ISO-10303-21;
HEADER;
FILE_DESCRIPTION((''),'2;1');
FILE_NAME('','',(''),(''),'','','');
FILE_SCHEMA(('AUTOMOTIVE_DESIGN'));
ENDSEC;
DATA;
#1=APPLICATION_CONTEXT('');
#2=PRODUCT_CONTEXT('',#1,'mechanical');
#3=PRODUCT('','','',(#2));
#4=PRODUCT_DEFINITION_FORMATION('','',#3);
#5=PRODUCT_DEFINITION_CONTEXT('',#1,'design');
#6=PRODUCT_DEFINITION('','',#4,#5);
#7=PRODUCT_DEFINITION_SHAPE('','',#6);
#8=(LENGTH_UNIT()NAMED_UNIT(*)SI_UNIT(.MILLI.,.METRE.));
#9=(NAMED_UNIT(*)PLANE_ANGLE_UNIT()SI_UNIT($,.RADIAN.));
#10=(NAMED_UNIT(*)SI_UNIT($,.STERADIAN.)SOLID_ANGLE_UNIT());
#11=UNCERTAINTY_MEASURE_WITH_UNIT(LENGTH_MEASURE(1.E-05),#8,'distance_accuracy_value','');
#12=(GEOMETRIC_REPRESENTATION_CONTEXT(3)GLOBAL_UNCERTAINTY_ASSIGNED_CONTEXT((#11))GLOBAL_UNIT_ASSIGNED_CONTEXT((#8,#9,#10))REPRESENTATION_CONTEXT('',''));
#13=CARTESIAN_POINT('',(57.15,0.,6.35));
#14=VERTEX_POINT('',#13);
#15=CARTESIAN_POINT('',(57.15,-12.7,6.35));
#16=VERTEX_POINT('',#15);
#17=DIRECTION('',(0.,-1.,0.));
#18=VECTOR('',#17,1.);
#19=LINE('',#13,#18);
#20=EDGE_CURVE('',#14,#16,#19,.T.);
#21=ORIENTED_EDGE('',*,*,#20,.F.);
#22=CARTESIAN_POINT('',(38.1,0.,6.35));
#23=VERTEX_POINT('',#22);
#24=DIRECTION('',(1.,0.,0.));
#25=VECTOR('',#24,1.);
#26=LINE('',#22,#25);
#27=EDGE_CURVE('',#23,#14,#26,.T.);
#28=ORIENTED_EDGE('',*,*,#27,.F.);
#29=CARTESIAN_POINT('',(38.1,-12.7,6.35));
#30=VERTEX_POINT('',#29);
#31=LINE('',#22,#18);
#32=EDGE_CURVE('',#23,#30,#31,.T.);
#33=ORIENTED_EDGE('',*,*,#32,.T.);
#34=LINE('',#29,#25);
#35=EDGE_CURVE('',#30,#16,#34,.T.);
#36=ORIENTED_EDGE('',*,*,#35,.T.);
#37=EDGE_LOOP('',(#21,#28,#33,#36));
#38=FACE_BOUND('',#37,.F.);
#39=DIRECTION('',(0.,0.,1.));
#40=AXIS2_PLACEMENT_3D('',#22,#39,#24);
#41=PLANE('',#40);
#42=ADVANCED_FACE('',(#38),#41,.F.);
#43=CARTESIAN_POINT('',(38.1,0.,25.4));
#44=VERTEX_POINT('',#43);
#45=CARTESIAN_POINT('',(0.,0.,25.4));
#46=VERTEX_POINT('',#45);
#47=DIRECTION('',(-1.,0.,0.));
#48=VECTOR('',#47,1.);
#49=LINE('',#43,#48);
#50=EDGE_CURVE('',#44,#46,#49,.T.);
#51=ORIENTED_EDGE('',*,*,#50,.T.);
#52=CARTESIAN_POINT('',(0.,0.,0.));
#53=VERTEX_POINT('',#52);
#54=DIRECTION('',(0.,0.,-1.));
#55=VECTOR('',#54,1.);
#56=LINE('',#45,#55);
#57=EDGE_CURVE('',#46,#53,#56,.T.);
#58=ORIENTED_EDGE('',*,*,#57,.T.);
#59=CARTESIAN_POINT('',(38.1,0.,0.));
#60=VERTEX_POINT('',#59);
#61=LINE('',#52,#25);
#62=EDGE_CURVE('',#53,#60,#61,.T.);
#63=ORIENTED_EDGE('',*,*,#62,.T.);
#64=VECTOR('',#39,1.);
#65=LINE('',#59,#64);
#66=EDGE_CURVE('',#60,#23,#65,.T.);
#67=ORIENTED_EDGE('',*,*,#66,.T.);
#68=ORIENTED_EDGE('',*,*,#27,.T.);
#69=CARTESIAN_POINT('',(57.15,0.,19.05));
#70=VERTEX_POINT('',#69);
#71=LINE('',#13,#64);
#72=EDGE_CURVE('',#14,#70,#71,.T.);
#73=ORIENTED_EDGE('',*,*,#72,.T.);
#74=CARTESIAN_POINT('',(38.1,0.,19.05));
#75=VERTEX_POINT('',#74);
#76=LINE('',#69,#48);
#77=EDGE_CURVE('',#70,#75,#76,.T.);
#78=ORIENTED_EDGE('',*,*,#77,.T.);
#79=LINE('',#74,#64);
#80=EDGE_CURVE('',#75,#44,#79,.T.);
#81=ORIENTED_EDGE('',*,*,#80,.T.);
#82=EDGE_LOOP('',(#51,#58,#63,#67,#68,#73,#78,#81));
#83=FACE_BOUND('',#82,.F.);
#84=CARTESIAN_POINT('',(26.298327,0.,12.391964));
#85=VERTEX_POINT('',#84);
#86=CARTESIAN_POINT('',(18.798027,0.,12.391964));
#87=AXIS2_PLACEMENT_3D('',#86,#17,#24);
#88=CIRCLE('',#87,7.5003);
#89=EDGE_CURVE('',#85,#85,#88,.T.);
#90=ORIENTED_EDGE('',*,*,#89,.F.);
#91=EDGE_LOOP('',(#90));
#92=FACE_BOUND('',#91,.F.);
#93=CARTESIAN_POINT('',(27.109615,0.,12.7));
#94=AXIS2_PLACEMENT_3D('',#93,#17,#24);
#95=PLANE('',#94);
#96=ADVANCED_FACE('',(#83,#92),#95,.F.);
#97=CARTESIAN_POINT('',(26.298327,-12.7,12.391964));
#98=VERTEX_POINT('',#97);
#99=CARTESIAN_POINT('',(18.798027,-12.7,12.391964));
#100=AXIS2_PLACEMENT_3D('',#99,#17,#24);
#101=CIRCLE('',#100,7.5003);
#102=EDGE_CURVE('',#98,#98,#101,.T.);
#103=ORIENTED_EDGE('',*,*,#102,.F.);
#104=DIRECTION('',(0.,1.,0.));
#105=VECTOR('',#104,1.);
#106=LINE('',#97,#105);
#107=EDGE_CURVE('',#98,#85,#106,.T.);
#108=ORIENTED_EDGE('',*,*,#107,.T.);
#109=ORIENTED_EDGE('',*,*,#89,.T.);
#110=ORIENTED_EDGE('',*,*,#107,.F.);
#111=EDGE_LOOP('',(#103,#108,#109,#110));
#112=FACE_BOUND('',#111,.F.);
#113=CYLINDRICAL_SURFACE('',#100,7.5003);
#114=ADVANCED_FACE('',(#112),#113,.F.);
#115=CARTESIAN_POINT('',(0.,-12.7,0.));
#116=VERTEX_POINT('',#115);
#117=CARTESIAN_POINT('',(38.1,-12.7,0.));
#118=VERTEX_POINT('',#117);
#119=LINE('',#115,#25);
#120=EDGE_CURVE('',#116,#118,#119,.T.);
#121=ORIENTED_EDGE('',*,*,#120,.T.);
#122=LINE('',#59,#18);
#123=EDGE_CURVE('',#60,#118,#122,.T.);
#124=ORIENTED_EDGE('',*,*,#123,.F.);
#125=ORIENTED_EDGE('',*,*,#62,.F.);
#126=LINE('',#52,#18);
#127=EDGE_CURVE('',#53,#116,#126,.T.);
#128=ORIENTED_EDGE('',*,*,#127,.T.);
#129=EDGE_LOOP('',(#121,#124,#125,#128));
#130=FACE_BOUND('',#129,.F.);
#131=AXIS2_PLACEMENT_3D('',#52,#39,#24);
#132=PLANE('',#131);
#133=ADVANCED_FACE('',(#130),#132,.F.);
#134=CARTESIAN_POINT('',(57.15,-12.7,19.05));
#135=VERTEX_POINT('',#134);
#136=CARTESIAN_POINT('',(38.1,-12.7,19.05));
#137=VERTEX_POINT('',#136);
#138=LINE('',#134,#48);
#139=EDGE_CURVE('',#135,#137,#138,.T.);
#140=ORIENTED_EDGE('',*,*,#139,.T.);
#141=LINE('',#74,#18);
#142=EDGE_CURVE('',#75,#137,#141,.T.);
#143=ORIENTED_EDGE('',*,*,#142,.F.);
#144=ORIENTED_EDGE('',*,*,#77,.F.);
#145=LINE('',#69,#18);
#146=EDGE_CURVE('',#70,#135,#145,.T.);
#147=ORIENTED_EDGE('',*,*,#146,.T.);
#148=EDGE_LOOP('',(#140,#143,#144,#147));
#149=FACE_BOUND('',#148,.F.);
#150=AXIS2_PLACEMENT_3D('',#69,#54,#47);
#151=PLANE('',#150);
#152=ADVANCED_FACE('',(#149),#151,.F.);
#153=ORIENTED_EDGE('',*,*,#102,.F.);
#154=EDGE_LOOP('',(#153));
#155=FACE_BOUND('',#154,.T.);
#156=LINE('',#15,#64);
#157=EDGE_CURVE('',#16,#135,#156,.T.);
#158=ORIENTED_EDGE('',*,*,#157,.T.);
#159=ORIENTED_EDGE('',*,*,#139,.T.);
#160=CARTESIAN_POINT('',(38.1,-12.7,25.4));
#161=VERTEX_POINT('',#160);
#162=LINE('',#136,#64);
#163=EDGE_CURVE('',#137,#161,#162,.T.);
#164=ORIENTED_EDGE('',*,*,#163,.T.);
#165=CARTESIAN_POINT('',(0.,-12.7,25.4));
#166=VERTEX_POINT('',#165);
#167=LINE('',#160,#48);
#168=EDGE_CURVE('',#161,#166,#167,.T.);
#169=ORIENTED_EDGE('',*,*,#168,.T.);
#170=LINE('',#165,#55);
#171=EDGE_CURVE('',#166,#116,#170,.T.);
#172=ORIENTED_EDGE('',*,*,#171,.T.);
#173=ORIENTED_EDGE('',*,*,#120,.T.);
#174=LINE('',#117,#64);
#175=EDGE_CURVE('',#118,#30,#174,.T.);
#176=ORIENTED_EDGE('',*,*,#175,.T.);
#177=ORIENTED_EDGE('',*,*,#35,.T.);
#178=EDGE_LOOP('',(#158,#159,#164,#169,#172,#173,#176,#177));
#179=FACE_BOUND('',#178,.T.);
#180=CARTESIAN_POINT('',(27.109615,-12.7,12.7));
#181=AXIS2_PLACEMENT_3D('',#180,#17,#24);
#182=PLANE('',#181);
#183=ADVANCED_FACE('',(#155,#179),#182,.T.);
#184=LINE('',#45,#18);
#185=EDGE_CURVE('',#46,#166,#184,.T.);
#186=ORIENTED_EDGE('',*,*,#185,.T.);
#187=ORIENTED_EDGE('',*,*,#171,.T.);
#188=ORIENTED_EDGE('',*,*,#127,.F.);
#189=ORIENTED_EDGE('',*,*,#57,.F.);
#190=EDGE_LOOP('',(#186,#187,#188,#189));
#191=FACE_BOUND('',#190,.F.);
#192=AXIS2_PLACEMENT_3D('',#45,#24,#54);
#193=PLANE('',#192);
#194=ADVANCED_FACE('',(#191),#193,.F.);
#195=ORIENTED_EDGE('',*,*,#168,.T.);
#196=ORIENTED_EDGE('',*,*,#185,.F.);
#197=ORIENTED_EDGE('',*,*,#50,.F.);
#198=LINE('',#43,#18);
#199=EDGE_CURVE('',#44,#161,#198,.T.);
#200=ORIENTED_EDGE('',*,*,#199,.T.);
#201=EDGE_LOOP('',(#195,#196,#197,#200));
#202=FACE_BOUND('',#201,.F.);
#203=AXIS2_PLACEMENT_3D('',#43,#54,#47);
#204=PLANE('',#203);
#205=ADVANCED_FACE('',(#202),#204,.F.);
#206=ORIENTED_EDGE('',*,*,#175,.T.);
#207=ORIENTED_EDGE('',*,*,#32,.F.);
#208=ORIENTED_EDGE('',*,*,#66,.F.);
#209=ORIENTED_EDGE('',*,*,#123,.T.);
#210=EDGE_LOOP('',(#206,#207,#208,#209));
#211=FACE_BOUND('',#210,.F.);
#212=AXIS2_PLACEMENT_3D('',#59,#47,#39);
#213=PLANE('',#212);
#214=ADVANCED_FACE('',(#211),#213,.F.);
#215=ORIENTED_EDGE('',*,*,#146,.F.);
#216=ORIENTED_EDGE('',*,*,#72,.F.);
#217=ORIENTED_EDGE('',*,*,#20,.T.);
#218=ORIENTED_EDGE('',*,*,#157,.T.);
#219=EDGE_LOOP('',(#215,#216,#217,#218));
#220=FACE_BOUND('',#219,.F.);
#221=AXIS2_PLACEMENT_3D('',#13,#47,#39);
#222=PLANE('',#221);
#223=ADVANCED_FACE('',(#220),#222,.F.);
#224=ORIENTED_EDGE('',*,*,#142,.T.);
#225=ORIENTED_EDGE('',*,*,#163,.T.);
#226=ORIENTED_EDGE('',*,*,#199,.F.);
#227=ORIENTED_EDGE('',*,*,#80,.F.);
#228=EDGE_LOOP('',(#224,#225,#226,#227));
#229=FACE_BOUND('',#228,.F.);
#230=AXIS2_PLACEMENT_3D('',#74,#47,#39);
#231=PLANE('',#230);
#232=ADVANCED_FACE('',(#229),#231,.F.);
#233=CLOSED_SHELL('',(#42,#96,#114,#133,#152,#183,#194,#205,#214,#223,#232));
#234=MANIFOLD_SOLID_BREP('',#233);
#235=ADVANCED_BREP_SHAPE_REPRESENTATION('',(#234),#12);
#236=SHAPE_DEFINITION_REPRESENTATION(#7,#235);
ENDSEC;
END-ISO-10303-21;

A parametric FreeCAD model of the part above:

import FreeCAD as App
import Part
import Sketcher
from FreeCAD import Vector
Q = App.Units.Quantity


def add_polygon(sketch, points):
    """Adds a closed chain of lines whose ends are joined by coincident constraints."""
    first, n = sketch.GeometryCount, len(points)
    for a, b in zip(points, points[1:] + points[:1]):
        sketch.addGeometry(Part.LineSegment(App.Vector(*a, 0), App.Vector(*b, 0)), False)
    for i in range(n):
        sketch.addConstraint(Sketcher.Constraint("Coincident", first + i, 2, first + (i + 1) % n, 1))

doc = App.newDocument("Part")
body = doc.addObject("PartDesign::Body", "Body")

sketch1 = doc.addObject("Sketcher::SketchObject", "Sketch")
body.addObject(sketch1)
sketch1.AttachmentSupport = (doc.XZ_Plane, [""])
sketch1.MapMode = "FlatFace"
add_polygon(sketch1, [(0, 25), (0, 0), (38, 0), (38, 6), (57, 6), (57, 19), (38, 19), (38, 25)])
sketch1.addConstraint([
    Sketcher.Constraint("Vertical", 0),
    Sketcher.Constraint("Horizontal", 1),
    Sketcher.Constraint("Vertical", 2),
    Sketcher.Constraint("Horizontal", 3),
    Sketcher.Constraint("Vertical", 4),
    Sketcher.Constraint("Horizontal", 5),
    Sketcher.Constraint("Vertical", 6),
    Sketcher.Constraint("Horizontal", 7),
    Sketcher.Constraint("Coincident", 0, 2, -1, 1),
    Sketcher.Constraint("Vertical", 2, 2, 5, 2),
    Sketcher.Constraint("Equal", 2, 6),
    Sketcher.Constraint("DistanceY", 0, 2, 0, 1, Q("1 in")),
    Sketcher.Constraint("DistanceX", 1, 1, 1, 2, Q("1.5 in")),
    Sketcher.Constraint("DistanceY", 4, 1, 4, 2, Q("0.5 in")),
    Sketcher.Constraint("DistanceX", 3, 1, 3, 2, Q("0.75 in")),
])
pad1 = doc.addObject("PartDesign::Pad", "Pad")
body.addObject(pad1)
pad1.Profile = sketch1
pad1.Length = Q("0.5 in")

sketch2 = doc.addObject("Sketcher::SketchObject", "Sketch001")
body.addObject(sketch2)
sketch2.AttachmentSupport = (doc.XZ_Plane, [""])
sketch2.MapMode = "FlatFace"
sketch2.AttachmentOffset = App.Placement(Vector(0, 0, 0.5 * 25.4), App.Rotation())
sketch2.addGeometry(Part.Circle(Vector(19, 12, 0), Vector(0, 0, 1), 8), False)
sketch2.addConstraint([
    Sketcher.Constraint("Diameter", 0, 15.0006),
    Sketcher.Constraint("DistanceX", -1, 1, 0, 3, 18.798027),
    Sketcher.Constraint("DistanceY", -1, 1, 0, 3, 12.391964),
])
pocket1 = doc.addObject("PartDesign::Pocket", "Pocket")
body.addObject(pocket1)
pocket1.Profile = sketch2
pocket1.Length = Q("1 in")

doc.recompute()
